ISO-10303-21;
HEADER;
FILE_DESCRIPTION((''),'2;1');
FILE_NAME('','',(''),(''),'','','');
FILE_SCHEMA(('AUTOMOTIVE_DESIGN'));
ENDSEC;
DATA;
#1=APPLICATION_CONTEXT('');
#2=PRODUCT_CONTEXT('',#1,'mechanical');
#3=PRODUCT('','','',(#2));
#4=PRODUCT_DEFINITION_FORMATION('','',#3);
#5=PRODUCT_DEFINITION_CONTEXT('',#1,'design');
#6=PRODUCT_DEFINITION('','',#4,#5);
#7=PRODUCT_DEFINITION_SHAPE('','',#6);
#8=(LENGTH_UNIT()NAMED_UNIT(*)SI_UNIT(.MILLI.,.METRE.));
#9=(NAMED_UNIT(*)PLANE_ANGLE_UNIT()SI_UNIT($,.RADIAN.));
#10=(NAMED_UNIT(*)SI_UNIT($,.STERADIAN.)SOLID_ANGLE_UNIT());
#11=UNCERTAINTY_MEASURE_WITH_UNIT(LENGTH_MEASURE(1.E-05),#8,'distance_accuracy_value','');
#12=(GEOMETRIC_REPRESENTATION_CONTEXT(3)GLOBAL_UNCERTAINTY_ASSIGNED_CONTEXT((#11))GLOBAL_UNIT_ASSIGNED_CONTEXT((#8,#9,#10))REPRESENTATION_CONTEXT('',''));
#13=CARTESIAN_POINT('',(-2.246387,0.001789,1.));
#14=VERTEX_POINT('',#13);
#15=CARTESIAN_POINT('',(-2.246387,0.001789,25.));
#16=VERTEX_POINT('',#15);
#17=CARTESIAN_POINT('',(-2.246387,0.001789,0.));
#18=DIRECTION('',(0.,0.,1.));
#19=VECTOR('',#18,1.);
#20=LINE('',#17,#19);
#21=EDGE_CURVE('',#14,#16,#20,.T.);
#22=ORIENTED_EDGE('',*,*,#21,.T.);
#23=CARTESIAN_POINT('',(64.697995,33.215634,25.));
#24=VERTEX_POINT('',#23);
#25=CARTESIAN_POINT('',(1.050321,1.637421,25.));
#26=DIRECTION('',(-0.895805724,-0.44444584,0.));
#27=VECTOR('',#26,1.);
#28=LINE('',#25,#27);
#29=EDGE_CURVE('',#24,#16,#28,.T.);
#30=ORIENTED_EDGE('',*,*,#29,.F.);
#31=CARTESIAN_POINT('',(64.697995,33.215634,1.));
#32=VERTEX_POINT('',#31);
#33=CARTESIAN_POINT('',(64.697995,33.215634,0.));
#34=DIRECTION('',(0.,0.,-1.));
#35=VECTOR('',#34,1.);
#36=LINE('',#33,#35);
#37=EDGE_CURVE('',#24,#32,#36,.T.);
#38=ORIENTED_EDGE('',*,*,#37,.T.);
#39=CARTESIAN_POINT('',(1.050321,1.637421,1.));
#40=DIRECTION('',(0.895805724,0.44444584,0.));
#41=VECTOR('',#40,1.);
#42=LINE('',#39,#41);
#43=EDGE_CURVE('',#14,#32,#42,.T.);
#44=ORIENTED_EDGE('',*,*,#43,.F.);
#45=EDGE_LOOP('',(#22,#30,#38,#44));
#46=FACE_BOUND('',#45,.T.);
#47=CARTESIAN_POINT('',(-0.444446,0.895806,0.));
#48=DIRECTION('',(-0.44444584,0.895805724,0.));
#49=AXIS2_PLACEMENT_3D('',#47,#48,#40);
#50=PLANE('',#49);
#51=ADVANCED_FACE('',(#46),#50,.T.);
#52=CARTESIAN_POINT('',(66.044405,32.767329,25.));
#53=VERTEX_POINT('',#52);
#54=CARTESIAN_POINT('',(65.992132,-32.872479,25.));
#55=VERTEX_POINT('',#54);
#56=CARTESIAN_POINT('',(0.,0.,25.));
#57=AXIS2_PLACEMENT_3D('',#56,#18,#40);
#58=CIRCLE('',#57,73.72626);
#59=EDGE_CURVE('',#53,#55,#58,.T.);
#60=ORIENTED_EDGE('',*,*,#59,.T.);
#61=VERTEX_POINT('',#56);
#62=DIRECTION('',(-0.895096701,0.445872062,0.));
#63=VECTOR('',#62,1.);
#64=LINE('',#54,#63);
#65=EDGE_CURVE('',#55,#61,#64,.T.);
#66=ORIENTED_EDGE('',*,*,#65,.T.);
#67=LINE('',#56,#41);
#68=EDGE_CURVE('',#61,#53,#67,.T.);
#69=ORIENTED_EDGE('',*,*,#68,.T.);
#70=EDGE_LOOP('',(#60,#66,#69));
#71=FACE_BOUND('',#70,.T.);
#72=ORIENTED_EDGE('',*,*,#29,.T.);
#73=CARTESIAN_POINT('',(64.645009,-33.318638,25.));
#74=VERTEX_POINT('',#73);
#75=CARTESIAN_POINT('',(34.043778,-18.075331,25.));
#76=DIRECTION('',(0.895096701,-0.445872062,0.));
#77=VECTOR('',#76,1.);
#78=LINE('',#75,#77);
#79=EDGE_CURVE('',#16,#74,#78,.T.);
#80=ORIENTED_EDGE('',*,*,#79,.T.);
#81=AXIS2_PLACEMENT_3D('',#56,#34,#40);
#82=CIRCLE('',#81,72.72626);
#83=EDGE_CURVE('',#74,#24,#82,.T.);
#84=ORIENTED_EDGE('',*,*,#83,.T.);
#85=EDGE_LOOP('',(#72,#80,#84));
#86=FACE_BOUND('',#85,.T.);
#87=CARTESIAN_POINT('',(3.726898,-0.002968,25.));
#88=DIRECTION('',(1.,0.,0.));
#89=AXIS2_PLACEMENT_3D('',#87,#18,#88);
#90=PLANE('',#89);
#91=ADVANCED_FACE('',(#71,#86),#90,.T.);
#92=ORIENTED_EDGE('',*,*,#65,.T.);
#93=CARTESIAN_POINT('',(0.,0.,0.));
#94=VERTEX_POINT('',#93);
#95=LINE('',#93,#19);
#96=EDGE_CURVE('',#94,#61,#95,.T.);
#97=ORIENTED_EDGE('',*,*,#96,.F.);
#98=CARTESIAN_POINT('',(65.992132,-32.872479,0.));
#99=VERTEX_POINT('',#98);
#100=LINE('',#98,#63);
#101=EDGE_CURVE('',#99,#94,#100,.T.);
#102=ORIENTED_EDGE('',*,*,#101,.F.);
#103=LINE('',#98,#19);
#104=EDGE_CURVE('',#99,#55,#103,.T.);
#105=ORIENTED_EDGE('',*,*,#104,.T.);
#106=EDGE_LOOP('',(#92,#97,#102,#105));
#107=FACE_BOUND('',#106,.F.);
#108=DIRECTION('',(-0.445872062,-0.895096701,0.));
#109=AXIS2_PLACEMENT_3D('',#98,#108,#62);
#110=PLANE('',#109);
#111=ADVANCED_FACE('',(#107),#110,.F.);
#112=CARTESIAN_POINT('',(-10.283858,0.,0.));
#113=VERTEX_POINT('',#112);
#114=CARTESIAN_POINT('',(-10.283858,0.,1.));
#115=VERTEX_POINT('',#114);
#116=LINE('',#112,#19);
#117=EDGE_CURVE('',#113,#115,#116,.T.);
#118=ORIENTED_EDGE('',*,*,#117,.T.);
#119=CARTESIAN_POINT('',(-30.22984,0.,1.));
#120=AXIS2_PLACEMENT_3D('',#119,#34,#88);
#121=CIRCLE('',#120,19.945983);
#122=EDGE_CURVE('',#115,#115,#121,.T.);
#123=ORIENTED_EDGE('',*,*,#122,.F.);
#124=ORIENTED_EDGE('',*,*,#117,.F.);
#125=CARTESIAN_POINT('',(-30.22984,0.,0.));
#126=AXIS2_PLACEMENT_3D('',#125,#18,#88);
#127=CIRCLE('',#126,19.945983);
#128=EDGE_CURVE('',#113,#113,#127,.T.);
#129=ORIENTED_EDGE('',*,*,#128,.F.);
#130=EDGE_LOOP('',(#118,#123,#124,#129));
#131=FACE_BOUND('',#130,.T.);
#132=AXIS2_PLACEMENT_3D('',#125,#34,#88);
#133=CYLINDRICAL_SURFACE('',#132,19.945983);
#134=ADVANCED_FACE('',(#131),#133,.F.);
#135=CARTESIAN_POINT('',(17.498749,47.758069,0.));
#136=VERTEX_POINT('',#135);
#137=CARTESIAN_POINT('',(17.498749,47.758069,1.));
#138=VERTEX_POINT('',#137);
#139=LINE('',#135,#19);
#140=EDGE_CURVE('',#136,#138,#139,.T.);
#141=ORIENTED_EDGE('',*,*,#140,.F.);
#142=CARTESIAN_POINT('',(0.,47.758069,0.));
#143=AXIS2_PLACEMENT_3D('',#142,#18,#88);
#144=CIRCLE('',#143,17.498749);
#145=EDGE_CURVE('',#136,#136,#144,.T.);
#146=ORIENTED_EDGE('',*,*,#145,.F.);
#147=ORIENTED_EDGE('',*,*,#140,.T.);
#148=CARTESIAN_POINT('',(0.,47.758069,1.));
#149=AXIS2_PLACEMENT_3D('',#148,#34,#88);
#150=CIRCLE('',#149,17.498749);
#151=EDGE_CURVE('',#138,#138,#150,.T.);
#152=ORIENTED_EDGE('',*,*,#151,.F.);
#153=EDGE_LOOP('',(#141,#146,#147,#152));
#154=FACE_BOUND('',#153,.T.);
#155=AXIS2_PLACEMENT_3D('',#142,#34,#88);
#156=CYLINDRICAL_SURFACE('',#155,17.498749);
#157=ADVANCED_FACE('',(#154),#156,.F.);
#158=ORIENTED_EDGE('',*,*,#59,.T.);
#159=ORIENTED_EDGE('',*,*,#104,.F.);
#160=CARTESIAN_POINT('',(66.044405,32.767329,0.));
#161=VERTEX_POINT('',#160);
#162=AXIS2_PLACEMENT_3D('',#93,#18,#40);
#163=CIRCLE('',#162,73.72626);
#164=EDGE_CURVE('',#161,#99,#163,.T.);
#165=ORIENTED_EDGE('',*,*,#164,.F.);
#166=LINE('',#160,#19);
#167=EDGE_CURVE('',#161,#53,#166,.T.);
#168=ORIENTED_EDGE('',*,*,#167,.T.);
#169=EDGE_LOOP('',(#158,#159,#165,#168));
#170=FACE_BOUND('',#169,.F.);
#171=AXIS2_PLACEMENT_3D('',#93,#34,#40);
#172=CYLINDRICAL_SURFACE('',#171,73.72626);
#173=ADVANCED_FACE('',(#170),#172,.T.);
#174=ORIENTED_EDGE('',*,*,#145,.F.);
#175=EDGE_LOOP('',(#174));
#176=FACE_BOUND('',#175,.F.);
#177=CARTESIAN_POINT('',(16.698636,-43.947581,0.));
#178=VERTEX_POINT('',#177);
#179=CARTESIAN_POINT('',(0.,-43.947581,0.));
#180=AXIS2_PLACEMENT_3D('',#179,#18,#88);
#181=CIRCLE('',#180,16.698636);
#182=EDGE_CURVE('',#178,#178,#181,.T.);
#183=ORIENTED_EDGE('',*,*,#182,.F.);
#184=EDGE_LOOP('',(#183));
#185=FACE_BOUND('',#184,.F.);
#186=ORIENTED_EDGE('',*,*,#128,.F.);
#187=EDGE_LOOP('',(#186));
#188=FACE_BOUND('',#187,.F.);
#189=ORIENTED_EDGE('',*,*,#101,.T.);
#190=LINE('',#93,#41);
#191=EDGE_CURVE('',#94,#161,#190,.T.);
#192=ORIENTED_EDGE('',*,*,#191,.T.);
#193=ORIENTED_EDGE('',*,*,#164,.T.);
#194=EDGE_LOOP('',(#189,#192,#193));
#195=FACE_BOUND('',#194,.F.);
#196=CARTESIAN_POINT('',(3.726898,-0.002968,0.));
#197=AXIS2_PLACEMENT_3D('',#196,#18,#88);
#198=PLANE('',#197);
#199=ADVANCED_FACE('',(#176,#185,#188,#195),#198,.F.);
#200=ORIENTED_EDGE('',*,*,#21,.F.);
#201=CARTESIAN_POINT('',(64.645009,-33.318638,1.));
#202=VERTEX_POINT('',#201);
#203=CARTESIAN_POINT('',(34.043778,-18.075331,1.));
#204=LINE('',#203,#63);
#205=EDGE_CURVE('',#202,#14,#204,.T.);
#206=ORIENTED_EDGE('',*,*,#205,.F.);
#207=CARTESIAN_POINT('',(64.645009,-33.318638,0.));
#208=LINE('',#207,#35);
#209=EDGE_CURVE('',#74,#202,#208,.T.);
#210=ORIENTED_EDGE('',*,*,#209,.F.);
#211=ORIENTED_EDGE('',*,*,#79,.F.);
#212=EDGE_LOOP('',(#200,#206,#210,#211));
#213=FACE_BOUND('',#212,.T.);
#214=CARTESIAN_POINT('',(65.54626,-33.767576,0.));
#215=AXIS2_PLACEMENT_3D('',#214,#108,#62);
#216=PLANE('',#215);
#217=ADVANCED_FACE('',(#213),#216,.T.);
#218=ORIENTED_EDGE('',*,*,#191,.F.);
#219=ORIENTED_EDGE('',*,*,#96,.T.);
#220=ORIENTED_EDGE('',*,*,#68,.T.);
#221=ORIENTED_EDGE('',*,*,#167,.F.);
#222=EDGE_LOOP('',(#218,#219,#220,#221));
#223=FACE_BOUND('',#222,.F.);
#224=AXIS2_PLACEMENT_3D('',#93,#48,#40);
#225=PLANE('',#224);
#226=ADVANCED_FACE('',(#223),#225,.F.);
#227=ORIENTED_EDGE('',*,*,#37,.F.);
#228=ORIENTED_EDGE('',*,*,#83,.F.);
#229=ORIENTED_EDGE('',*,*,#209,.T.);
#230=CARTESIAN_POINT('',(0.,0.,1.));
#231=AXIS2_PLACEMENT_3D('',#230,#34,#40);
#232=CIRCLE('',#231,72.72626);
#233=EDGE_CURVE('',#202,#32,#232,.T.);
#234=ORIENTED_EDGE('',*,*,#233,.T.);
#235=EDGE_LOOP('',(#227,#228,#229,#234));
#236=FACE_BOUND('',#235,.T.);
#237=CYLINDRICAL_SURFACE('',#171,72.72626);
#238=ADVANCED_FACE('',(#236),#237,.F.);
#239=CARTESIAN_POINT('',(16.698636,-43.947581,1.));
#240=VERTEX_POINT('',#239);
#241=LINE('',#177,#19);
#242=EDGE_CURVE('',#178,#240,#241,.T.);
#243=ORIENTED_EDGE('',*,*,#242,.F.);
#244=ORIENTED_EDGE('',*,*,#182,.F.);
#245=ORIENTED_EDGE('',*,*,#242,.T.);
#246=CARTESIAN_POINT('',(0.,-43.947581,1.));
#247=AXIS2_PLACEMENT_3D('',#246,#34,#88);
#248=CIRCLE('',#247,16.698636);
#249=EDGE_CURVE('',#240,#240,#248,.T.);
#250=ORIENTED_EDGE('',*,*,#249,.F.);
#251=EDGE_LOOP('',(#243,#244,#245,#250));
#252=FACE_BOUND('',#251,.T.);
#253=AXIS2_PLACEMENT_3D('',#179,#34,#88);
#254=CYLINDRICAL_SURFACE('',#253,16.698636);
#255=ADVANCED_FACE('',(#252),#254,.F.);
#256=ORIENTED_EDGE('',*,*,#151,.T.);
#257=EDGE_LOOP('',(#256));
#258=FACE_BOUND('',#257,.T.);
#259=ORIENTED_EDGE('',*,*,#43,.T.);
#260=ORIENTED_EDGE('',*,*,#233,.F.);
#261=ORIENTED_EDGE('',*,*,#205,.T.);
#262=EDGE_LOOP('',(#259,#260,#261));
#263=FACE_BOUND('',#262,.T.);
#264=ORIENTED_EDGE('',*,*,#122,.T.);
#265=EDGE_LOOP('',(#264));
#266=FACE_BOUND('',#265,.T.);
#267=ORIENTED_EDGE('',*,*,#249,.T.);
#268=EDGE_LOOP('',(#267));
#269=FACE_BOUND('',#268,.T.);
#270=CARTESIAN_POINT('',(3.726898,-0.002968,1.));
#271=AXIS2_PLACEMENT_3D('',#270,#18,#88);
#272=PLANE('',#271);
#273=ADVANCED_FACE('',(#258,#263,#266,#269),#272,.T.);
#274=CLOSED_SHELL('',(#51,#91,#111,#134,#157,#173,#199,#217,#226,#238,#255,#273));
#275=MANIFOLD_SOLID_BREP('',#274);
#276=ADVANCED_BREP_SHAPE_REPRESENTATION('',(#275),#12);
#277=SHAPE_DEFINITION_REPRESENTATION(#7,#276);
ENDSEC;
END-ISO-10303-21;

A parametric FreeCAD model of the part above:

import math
import FreeCAD as App
import Part
import Sketcher


def faces_at(feature, points):
    """Names of the faces that lie closest to the given points."""
    faces = feature.Shape.Faces
    near = lambda p: min(range(len(faces)), key=lambda i: faces[i].distToShape(Part.Vertex(*p))[0])
    return sorted({f"Face{near(p) + 1}" for p in points})

doc = App.newDocument("Part")
params = doc.addObject("Spreadsheet::Sheet", "Params")
for row, (alias, value) in enumerate([
    ("pad1_length", "25 mm"),
    ("thickness_wall", "1 mm"),
    ("pocket1_length", "25 mm"),
], start=1):
    params.set(f"A{row}", alias)
    params.set(f"B{row}", "=" + value)
    params.setAlias(f"B{row}", alias)

body = doc.addObject("PartDesign::Body", "Body")

sketch1 = body.newObject("Sketcher::SketchObject", "Sketch")
sketch1.AttachmentSupport = (doc.getObject("XY_Plane"), [""])
sketch1.MapMode = "FlatFace"
sketch1.addGeometry([
    Part.LineSegment(App.Vector(0, 0, 0), App.Vector(66, 33, 0)),
    Part.ArcOfCircle(Part.Circle(App.Vector(0, 0, 0), App.Vector(0, 0, 1), 74), math.radians(26), math.radians(334)),
    Part.LineSegment(App.Vector(66, -33, 0), App.Vector(0, 0, 0)),
], False)
sketch1.addConstraint([
    Sketcher.Constraint("Coincident", 0, 2, 1, 1),
    Sketcher.Constraint("Coincident", 1, 2, 2, 1),
    Sketcher.Constraint("Coincident", 2, 2, 0, 1),
    Sketcher.Constraint("Coincident", 1, 3, -1, 1),
    Sketcher.Constraint("Coincident", 2, 2, -1, 1),
    Sketcher.Constraint("Radius", 1, 73.72626),
    Sketcher.Constraint("DistanceY", -1, 1, 0, 2, 32.767329),
    Sketcher.Constraint("DistanceX", -1, 1, 1, 2, 65.992132),
])
pad1 = body.newObject("PartDesign::Pad", "Pad")
pad1.Profile = sketch1
pad1.setExpression("Length", "Params.pad1_length")
doc.recompute()

thickness = body.newObject("PartDesign::Thickness", "Thickness")
thickness.Base = (pad1, faces_at(pad1, [(-3.841, 0, 25)]))
thickness.setExpression("Value", "Params.thickness_wall")
thickness.Reversed = True
thickness.Join = "Intersection"

sketch2 = body.newObject("Sketcher::SketchObject", "Sketch001")
sketch2.AttachmentSupport = (doc.getObject("XY_Plane"), [""])
sketch2.MapMode = "FlatFace"
sketch2.addGeometry([
    Part.Circle(App.Vector(0, 48, 0), App.Vector(0, 0, 1), 17),
    Part.Circle(App.Vector(-30, 0, 0), App.Vector(0, 0, 1), 20),
    Part.Circle(App.Vector(0, -44, 0), App.Vector(0, 0, 1), 17),
], False)
sketch2.addConstraint([
    Sketcher.Constraint("PointOnObject", 0, 3, -2),
    Sketcher.Constraint("PointOnObject", 1, 3, -1),
    Sketcher.Constraint("PointOnObject", 2, 3, -2),
    Sketcher.Constraint("Diameter", 0, 34.997499),
    Sketcher.Constraint("Diameter", 1, 39.891965),
    Sketcher.Constraint("Diameter", 2, 33.397273),
    Sketcher.Constraint("DistanceY", -1, 1, 0, 3, 47.758069),
    Sketcher.Constraint("DistanceX", 1, 3, -1, 1, 30.22984),
    Sketcher.Constraint("DistanceY", 2, 3, -1, 1, 43.947581),
])
pocket1 = body.newObject("PartDesign::Pocket", "Pocket")
pocket1.Profile = sketch2
pocket1.setExpression("Length", "Params.pocket1_length")
pocket1.Reversed = True

doc.recompute()
